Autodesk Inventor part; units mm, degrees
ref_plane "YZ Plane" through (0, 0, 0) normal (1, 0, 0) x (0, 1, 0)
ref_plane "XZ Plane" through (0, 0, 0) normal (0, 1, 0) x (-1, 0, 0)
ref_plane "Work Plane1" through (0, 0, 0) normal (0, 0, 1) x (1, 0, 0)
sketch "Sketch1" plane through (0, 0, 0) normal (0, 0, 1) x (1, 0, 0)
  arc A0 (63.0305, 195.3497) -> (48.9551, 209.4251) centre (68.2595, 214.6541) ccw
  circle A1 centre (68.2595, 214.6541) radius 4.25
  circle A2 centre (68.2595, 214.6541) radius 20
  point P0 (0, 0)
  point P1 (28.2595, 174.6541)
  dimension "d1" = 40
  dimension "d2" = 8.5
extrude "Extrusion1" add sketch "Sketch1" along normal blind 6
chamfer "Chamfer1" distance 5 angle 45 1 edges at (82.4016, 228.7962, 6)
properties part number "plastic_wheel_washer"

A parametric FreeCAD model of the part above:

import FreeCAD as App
import Part
import Sketcher
from FreeCAD import Vector


def edges_at(feature, points):
    """Names of the edges that pass closest to the given points."""
    edges = feature.Shape.Edges
    near = lambda p: min(range(len(edges)), key=lambda i: edges[i].distToShape(Part.Vertex(*p))[0])
    return sorted({f"Edge{near(p) + 1}" for p in points})

doc = App.newDocument("Part")
params = doc.addObject("Spreadsheet::Sheet", "Params")
for row, (alias, value) in enumerate([
    ("sketch1_diameter", "40 mm"),
    ("sketch1_diameter2", "8.5 mm"),
    ("pad1_length", "6 mm"),
    ("chamfer_size", "5 mm"),
], start=1):
    params.set(f"A{row}", alias)
    params.set(f"B{row}", "=" + value)
    params.setAlias(f"B{row}", alias)

body = doc.addObject("PartDesign::Body", "Body")

# Sketch on XY plane
sketch1 = body.newObject("Sketcher::SketchObject", "Sketch")
sketch1.AttachmentSupport = (doc.getObject("XY_Plane"), [""])
sketch1.MapMode = "FlatFace"
sketch1.addGeometry(Part.Circle(Vector(68.3, 214.7, 0), Vector(0, 0, 1), 20), False)
sketch1.addGeometry(Part.Circle(Vector(68.3, 214.7, 0), Vector(0, 0, 1), 4.2), False)
sketch1.addConstraint(Sketcher.Constraint("Coincident", 1, 3, 0, 3))
sketch1.addConstraint(Sketcher.Constraint("Diameter", 0, 40.0))
sketch1.addConstraint(Sketcher.Constraint("Diameter", 1, 8.5))
sketch1.addConstraint(Sketcher.Constraint("DistanceY", -1, 1, 0, 3, 214.654))
sketch1.addConstraint(Sketcher.Constraint("DistanceX", -1, 1, 0, 3, 68.2595))
sketch1.setExpression("Constraints[1]", "Params.sketch1_diameter")
sketch1.setExpression("Constraints[2]", "Params.sketch1_diameter2")
pad1 = body.newObject("PartDesign::Pad", "Pad")
pad1.Profile = sketch1
pad1.setExpression("Length", "Params.pad1_length")
doc.recompute()

chamfer = body.newObject("PartDesign::Chamfer", "Chamfer")
chamfer.Base = (pad1, edges_at(pad1, [(82.402, 228.796, 6)]))
chamfer.setExpression("Size", "Params.chamfer_size")

doc.recompute()
